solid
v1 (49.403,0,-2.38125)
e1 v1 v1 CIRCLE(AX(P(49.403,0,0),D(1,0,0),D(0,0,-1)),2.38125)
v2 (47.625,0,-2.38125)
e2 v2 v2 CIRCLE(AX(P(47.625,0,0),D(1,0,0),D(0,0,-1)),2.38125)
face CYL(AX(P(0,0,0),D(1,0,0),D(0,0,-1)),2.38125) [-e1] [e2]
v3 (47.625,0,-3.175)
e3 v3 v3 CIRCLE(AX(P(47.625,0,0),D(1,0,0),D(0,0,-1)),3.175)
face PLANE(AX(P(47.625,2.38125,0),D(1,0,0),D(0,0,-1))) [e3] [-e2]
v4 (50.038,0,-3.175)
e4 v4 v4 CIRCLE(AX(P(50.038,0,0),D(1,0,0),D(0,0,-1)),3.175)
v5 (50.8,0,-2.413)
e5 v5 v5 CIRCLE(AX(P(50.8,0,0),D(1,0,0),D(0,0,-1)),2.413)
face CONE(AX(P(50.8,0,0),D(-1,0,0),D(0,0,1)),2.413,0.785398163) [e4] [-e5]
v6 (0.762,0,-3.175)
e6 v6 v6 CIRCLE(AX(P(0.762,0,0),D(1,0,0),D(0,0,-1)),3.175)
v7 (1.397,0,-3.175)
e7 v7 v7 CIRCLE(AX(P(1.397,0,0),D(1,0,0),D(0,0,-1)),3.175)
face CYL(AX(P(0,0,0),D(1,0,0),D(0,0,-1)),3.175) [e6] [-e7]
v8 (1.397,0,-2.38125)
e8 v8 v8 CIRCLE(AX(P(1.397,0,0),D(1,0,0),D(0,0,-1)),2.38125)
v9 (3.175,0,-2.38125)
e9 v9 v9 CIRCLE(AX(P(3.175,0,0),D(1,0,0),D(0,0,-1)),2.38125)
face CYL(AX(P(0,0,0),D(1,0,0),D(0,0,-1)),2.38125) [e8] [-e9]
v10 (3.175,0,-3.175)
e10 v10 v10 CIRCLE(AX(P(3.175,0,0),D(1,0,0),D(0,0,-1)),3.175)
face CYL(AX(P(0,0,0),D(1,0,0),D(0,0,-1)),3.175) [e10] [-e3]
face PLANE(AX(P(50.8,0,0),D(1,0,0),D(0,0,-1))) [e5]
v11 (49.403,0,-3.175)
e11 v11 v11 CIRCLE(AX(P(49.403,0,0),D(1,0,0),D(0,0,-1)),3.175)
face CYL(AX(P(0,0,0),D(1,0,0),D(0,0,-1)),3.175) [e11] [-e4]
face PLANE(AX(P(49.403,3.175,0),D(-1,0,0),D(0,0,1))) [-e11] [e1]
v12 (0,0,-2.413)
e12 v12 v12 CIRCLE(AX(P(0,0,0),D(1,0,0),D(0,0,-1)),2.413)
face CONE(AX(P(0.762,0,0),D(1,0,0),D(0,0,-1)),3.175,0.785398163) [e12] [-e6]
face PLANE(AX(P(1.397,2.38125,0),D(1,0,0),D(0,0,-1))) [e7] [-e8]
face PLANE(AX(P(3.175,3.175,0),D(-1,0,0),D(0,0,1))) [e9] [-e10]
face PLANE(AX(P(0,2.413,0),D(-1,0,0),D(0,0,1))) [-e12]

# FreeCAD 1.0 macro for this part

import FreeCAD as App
import Part
import Sketcher
from FreeCAD import Vector
Q = App.Units.Quantity

doc = App.newDocument("Part")
body = doc.addObject("PartDesign::Body", "Body")

# Sketch on XY plane
sketch1 = body.newObject("Sketcher::SketchObject", "Sketch")
sketch1.AttachmentSupport = (doc.getObject("XY_Plane"), [""])
sketch1.MapMode = "FlatFace"
sketch1.addGeometry([
    Part.LineSegment(Vector(0, 0, 0), Vector(50.8, 0, 0)),  # 0
    Part.LineSegment(Vector(50.8, 0, 0), Vector(50.8, 2.4, 0)),  # 1
    Part.LineSegment(Vector(50.8, 2.4, 0), Vector(50, 3.2, 0)),  # 2
    Part.LineSegment(Vector(50, 3.2, 0), Vector(49.4, 3.2, 0)),  # 3
    Part.LineSegment(Vector(49.4, 3.2, 0), Vector(49.4, 2.4, 0)),  # 4
    Part.LineSegment(Vector(49.4, 2.4, 0), Vector(47.6, 2.4, 0)),  # 5
    Part.LineSegment(Vector(47.6, 2.4, 0), Vector(47.6, 3.2, 0)),  # 6
    Part.LineSegment(Vector(47.6, 3.2, 0), Vector(3.2, 3.2, 0)),  # 7
    Part.LineSegment(Vector(3.2, 3.2, 0), Vector(3.2, 2.4, 0)),  # 8
    Part.LineSegment(Vector(3.2, 2.4, 0), Vector(1.4, 2.4, 0)),  # 9
    Part.LineSegment(Vector(1.4, 2.4, 0), Vector(1.4, 3.2, 0)),  # 10
    Part.LineSegment(Vector(1.4, 3.2, 0), Vector(0.8, 3.2, 0)),  # 11
    Part.LineSegment(Vector(0.8, 3.2, 0), Vector(0, 2.4, 0)),  # 12
    Part.LineSegment(Vector(0, 2.4, 0), Vector(0, 0, 0)),  # 13
], False)
sketch1.addConstraint([
    Sketcher.Constraint("Coincident", 0, 2, 1, 1),
    Sketcher.Constraint("Coincident", 1, 2, 2, 1),
    Sketcher.Constraint("Coincident", 2, 2, 3, 1),
    Sketcher.Constraint("Coincident", 3, 2, 4, 1),
    Sketcher.Constraint("Coincident", 4, 2, 5, 1),
    Sketcher.Constraint("Coincident", 5, 2, 6, 1),
    Sketcher.Constraint("Coincident", 6, 2, 7, 1),
    Sketcher.Constraint("Coincident", 7, 2, 8, 1),
    Sketcher.Constraint("Coincident", 8, 2, 9, 1),
    Sketcher.Constraint("Coincident", 9, 2, 10, 1),
    Sketcher.Constraint("Coincident", 10, 2, 11, 1),
    Sketcher.Constraint("Coincident", 11, 2, 12, 1),
    Sketcher.Constraint("Coincident", 12, 2, 13, 1),
    Sketcher.Constraint("Coincident", 13, 2, 0, 1),
    Sketcher.Constraint("Horizontal", 0),
    Sketcher.Constraint("Vertical", 1),
    Sketcher.Constraint("Horizontal", 3),
    Sketcher.Constraint("Vertical", 4),
    Sketcher.Constraint("Horizontal", 5),
    Sketcher.Constraint("Vertical", 6),
    Sketcher.Constraint("Horizontal", 7),
    Sketcher.Constraint("Vertical", 8),
    Sketcher.Constraint("Horizontal", 9),
    Sketcher.Constraint("Vertical", 10),
    Sketcher.Constraint("Horizontal", 11),
    Sketcher.Constraint("Vertical", 13),
    Sketcher.Constraint("Coincident", 13, 2, -1, 1),
    Sketcher.Constraint("Perpendicular", 2, 12),
    Sketcher.Constraint("Horizontal", 3, 2, 6, 2),
    Sketcher.Constraint("Horizontal", 5, 2, 8, 2),
    Sketcher.Constraint("Horizontal", 7, 2, 10, 2),
    Sketcher.Constraint("Horizontal", 1, 2, 12, 2),
    Sketcher.Constraint("Equal", 5, 9),
    Sketcher.Constraint("Equal", 3, 11),
    Sketcher.Constraint("Equal", 2, 12),
    Sketcher.Constraint("DistanceX", 0, 1, 0, 2, Q("2 in")),
    Sketcher.Constraint("DistanceX", 5, 2, 5, 1, Q("0.07 in")),
    Sketcher.Constraint("DistanceX", 7, 2, 7, 1, Q("1.75 in")),
    Sketcher.Constraint("DistanceX", 3, 2, 3, 1, Q("0.025 in")),
    Sketcher.Constraint("DistanceY", 1, 1, 1, 2, Q("0.095 in")),
    Sketcher.Constraint("DistanceY", 4, 2, 4, 1, Q("0.03125 in")),
])
revolution = body.newObject("PartDesign::Revolution", "Revolution")
revolution.Profile = sketch1
revolution.ReferenceAxis = (sketch1, ["H_Axis"])
revolution.Angle = 360

doc.recompute()
